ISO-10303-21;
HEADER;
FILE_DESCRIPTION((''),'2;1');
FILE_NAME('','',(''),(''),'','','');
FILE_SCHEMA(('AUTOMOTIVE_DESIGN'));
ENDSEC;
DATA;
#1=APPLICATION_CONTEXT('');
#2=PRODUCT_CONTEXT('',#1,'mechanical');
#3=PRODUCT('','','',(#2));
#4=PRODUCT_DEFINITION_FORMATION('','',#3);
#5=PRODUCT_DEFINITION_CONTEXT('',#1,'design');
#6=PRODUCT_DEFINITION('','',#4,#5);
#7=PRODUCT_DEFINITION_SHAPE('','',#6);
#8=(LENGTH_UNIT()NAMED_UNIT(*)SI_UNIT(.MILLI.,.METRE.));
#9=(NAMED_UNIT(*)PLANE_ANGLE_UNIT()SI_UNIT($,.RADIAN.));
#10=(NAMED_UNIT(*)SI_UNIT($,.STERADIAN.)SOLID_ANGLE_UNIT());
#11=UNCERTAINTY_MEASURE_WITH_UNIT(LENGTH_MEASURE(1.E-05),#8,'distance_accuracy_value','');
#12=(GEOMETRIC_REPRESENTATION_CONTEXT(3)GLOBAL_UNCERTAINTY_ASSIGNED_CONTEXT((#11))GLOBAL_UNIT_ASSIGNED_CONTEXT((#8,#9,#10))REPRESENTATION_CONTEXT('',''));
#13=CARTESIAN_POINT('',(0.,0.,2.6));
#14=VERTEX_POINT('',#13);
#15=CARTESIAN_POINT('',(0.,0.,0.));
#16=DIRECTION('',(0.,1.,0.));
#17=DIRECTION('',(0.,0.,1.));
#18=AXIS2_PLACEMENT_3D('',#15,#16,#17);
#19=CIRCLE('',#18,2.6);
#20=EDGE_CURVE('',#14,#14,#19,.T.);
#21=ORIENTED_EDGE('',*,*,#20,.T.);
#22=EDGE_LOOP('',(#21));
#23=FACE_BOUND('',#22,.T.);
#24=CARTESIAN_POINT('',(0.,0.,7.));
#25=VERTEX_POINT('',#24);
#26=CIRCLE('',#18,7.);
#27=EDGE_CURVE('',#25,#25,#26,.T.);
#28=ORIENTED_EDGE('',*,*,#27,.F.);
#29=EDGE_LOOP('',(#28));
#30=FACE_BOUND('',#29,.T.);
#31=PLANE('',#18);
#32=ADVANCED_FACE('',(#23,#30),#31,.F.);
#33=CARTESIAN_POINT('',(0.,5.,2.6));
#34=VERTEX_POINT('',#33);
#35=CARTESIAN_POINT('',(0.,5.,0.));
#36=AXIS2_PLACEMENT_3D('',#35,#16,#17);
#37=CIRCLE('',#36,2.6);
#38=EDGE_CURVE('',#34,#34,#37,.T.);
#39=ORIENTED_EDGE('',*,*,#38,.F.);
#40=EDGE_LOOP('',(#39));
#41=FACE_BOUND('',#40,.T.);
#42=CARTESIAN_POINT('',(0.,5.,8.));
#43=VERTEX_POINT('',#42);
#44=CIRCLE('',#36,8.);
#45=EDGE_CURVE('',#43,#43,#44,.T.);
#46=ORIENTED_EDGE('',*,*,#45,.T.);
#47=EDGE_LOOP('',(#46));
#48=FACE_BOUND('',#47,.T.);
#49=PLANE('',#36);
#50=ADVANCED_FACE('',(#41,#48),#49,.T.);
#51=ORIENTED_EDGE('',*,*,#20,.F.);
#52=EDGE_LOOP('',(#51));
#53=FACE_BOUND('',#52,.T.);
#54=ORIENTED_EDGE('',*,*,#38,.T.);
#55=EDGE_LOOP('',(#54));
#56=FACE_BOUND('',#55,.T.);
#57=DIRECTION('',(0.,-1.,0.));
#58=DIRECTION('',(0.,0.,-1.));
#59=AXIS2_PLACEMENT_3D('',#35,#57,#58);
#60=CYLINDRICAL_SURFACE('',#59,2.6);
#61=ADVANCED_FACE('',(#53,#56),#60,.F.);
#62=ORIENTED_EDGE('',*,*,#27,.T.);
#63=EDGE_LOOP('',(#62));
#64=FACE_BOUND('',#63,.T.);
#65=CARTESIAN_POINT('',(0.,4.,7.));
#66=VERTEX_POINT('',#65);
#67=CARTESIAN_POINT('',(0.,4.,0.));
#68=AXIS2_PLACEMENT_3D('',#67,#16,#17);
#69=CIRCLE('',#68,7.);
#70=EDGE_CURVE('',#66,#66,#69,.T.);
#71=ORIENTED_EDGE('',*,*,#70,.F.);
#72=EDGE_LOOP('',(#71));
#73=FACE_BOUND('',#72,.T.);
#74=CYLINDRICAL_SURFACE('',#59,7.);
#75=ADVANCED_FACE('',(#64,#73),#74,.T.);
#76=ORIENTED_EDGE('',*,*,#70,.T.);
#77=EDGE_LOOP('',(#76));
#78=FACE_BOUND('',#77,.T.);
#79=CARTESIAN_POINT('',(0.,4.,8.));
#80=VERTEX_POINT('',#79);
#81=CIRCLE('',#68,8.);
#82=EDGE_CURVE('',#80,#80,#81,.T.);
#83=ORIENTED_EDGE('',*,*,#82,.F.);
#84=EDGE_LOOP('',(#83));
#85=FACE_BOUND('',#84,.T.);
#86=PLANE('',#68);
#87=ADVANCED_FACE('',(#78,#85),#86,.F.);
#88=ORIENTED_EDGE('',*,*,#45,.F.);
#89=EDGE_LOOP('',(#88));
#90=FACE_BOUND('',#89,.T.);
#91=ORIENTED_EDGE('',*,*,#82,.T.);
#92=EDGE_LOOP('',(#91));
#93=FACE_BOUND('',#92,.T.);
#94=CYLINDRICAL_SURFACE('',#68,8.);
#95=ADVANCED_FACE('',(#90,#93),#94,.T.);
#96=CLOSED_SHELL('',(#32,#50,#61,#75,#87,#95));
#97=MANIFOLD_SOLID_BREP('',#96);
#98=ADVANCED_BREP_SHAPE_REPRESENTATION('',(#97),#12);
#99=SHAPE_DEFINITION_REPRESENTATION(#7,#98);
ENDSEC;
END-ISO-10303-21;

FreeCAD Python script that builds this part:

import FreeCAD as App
import Part
import Sketcher

V = App.Vector
Q = App.Units.Quantity

doc = App.newDocument("Part")
body = doc.addObject("PartDesign::Body", "Body")

sketch1 = body.newObject("Sketcher::SketchObject", "Sketch")
sketch1.AttachmentSupport = (doc.getObject("XZ_Plane"), [""])
sketch1.MapMode = "FlatFace"
sketch1.addGeometry([
    Part.Circle(V(0, 0, 0), V(0, 0, 1), 7),
    Part.Circle(V(0, 0, 0), V(0, 0, 1), 2.6),
], False)
sketch1.addConstraint([
    Sketcher.Constraint("Coincident", 0, 3, -1, 1),
    Sketcher.Constraint("Coincident", 1, 3, -1, 1),
    Sketcher.Constraint("Diameter", 0, Q("14 mm")),
    Sketcher.Constraint("Diameter", 1, Q("5.2 mm")),
])
pad1 = body.newObject("PartDesign::Pad", "Pad")
pad1.Profile = sketch1
pad1.Length = 5
pad1.Reversed = True

sketch2 = body.newObject("Sketcher::SketchObject", "Sketch001")
sketch2.AttachmentSupport = (doc.getObject("XZ_Plane"), [""])
sketch2.MapMode = "FlatFace"
sketch2.AttachmentOffset = App.Placement(V(0, 0, -5), App.Rotation())
sketch2.addGeometry([
    Part.Circle(V(0, 0, 0), V(0, 0, 1), 8),
    Part.Circle(V(0, 0, 0), V(0, 0, 1), 2.6),
], False)
sketch2.addConstraint([
    Sketcher.Constraint("Coincident", 0, 3, -1, 1),
    Sketcher.Constraint("Coincident", 1, 3, -1, 1),
    Sketcher.Constraint("Diameter", 0, Q("16 mm")),
    Sketcher.Constraint("Diameter", 1, Q("5.2 mm")),
])
pad2 = body.newObject("PartDesign::Pad", "Pad001")
pad2.Profile = sketch2
pad2.Length = 1

doc.recompute()
